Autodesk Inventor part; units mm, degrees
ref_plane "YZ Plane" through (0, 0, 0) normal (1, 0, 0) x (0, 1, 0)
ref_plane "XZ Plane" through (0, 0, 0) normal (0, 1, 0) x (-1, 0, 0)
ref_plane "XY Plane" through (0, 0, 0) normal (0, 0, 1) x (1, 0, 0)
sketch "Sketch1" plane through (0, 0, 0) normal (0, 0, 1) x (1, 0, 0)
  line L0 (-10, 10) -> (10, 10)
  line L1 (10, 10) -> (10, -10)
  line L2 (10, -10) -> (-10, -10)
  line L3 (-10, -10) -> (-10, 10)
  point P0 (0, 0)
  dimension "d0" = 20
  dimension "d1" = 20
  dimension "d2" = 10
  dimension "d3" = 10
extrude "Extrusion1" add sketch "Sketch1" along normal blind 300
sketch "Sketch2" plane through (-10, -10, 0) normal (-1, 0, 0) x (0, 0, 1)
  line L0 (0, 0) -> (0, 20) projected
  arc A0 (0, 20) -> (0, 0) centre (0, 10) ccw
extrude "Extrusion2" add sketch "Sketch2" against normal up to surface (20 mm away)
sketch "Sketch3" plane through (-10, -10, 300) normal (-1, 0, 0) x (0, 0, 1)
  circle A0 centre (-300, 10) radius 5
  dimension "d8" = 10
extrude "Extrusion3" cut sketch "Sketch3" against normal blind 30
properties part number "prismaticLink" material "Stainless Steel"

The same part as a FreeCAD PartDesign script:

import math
import FreeCAD as App
import Part
import Sketcher
Q = App.Units.Quantity

doc = App.newDocument("Part")
body = doc.addObject("PartDesign::Body", "Body")

# Sketch on XY plane
sketch1 = body.newObject("Sketcher::SketchObject", "Sketch")
sketch1.AttachmentSupport = (doc.getObject("XY_Plane"), [""])
sketch1.MapMode = "FlatFace"
sketch1.addGeometry(Part.LineSegment(App.Vector(10, 10, 0), App.Vector(-10, 10, 0)), False)
sketch1.addGeometry(Part.LineSegment(App.Vector(-10, 10, 0), App.Vector(-10, -10, 0)), False)
sketch1.addGeometry(Part.LineSegment(App.Vector(-10, -10, 0), App.Vector(10, -10, 0)), False)
sketch1.addGeometry(Part.LineSegment(App.Vector(10, -10, 0), App.Vector(10, 10, 0)), False)
sketch1.addConstraint(Sketcher.Constraint("Coincident", 0, 2, 1, 1))
sketch1.addConstraint(Sketcher.Constraint("Coincident", 1, 2, 2, 1))
sketch1.addConstraint(Sketcher.Constraint("Coincident", 2, 2, 3, 1))
sketch1.addConstraint(Sketcher.Constraint("Coincident", 3, 2, 0, 1))
sketch1.addConstraint(Sketcher.Constraint("Horizontal", 0))
sketch1.addConstraint(Sketcher.Constraint("Vertical", 1))
sketch1.addConstraint(Sketcher.Constraint("Horizontal", 2))
sketch1.addConstraint(Sketcher.Constraint("Vertical", 3))
sketch1.addConstraint(Sketcher.Constraint("Symmetric", 0, 2, 2, 2, -1, 1))
sketch1.addConstraint(Sketcher.Constraint("Equal", 2, 1))
sketch1.addConstraint(Sketcher.Constraint("DistanceX", 0, 2, 0, 1, Q("20 mm")))
pad1 = body.newObject("PartDesign::Pad", "Pad")
pad1.Profile = sketch1
pad1.Length = 300

# Sketch on YZ plane
sketch2 = body.newObject("Sketcher::SketchObject", "Sketch001")
sketch2.AttachmentSupport = (doc.getObject("YZ_Plane"), [""])
sketch2.MapMode = "FlatFace"
sketch2.AttachmentOffset = App.Placement(App.Vector(0, 0, -10), App.Rotation())
sketch2.addGeometry(Part.ArcOfCircle(Part.Circle(App.Vector(0, 0, 0), App.Vector(0, 0, 1), 10), math.radians(180), math.radians(360)), False)
sketch2.addGeometry(Part.LineSegment(App.Vector(-10, 0, 0), App.Vector(10, 0, 0)), False)
sketch2.addConstraint(Sketcher.Constraint("Coincident", 0, 1, 1, 1))
sketch2.addConstraint(Sketcher.Constraint("Coincident", 1, 2, 0, 2))
sketch2.addConstraint(Sketcher.Constraint("Horizontal", 1))
sketch2.addConstraint(Sketcher.Constraint("Coincident", 0, 3, -1, 1))
sketch2.addConstraint(Sketcher.Constraint("PointOnObject", 0, 1, -1))
sketch2.addConstraint(Sketcher.Constraint("Radius", 0, Q("10 mm")))
pad2 = body.newObject("PartDesign::Pad", "Pad001")
pad2.Profile = sketch2
pad2.Length = 20

# Sketch on YZ plane
sketch3 = body.newObject("Sketcher::SketchObject", "Sketch002")
sketch3.AttachmentSupport = (doc.getObject("YZ_Plane"), [""])
sketch3.MapMode = "FlatFace"
sketch3.AttachmentOffset = App.Placement(App.Vector(0, 0, -10), App.Rotation())
sketch3.addGeometry(Part.Circle(App.Vector(0, 0, 0), App.Vector(0, 0, 1), 5), False)
sketch3.addConstraint(Sketcher.Constraint("Coincident", 0, 3, -1, 1))
sketch3.addConstraint(Sketcher.Constraint("Diameter", 0, Q("10 mm")))
pocket1 = body.newObject("PartDesign::Pocket", "Pocket")
pocket1.Profile = sketch3
pocket1.Length = 30
pocket1.Reversed = True

doc.recompute()
